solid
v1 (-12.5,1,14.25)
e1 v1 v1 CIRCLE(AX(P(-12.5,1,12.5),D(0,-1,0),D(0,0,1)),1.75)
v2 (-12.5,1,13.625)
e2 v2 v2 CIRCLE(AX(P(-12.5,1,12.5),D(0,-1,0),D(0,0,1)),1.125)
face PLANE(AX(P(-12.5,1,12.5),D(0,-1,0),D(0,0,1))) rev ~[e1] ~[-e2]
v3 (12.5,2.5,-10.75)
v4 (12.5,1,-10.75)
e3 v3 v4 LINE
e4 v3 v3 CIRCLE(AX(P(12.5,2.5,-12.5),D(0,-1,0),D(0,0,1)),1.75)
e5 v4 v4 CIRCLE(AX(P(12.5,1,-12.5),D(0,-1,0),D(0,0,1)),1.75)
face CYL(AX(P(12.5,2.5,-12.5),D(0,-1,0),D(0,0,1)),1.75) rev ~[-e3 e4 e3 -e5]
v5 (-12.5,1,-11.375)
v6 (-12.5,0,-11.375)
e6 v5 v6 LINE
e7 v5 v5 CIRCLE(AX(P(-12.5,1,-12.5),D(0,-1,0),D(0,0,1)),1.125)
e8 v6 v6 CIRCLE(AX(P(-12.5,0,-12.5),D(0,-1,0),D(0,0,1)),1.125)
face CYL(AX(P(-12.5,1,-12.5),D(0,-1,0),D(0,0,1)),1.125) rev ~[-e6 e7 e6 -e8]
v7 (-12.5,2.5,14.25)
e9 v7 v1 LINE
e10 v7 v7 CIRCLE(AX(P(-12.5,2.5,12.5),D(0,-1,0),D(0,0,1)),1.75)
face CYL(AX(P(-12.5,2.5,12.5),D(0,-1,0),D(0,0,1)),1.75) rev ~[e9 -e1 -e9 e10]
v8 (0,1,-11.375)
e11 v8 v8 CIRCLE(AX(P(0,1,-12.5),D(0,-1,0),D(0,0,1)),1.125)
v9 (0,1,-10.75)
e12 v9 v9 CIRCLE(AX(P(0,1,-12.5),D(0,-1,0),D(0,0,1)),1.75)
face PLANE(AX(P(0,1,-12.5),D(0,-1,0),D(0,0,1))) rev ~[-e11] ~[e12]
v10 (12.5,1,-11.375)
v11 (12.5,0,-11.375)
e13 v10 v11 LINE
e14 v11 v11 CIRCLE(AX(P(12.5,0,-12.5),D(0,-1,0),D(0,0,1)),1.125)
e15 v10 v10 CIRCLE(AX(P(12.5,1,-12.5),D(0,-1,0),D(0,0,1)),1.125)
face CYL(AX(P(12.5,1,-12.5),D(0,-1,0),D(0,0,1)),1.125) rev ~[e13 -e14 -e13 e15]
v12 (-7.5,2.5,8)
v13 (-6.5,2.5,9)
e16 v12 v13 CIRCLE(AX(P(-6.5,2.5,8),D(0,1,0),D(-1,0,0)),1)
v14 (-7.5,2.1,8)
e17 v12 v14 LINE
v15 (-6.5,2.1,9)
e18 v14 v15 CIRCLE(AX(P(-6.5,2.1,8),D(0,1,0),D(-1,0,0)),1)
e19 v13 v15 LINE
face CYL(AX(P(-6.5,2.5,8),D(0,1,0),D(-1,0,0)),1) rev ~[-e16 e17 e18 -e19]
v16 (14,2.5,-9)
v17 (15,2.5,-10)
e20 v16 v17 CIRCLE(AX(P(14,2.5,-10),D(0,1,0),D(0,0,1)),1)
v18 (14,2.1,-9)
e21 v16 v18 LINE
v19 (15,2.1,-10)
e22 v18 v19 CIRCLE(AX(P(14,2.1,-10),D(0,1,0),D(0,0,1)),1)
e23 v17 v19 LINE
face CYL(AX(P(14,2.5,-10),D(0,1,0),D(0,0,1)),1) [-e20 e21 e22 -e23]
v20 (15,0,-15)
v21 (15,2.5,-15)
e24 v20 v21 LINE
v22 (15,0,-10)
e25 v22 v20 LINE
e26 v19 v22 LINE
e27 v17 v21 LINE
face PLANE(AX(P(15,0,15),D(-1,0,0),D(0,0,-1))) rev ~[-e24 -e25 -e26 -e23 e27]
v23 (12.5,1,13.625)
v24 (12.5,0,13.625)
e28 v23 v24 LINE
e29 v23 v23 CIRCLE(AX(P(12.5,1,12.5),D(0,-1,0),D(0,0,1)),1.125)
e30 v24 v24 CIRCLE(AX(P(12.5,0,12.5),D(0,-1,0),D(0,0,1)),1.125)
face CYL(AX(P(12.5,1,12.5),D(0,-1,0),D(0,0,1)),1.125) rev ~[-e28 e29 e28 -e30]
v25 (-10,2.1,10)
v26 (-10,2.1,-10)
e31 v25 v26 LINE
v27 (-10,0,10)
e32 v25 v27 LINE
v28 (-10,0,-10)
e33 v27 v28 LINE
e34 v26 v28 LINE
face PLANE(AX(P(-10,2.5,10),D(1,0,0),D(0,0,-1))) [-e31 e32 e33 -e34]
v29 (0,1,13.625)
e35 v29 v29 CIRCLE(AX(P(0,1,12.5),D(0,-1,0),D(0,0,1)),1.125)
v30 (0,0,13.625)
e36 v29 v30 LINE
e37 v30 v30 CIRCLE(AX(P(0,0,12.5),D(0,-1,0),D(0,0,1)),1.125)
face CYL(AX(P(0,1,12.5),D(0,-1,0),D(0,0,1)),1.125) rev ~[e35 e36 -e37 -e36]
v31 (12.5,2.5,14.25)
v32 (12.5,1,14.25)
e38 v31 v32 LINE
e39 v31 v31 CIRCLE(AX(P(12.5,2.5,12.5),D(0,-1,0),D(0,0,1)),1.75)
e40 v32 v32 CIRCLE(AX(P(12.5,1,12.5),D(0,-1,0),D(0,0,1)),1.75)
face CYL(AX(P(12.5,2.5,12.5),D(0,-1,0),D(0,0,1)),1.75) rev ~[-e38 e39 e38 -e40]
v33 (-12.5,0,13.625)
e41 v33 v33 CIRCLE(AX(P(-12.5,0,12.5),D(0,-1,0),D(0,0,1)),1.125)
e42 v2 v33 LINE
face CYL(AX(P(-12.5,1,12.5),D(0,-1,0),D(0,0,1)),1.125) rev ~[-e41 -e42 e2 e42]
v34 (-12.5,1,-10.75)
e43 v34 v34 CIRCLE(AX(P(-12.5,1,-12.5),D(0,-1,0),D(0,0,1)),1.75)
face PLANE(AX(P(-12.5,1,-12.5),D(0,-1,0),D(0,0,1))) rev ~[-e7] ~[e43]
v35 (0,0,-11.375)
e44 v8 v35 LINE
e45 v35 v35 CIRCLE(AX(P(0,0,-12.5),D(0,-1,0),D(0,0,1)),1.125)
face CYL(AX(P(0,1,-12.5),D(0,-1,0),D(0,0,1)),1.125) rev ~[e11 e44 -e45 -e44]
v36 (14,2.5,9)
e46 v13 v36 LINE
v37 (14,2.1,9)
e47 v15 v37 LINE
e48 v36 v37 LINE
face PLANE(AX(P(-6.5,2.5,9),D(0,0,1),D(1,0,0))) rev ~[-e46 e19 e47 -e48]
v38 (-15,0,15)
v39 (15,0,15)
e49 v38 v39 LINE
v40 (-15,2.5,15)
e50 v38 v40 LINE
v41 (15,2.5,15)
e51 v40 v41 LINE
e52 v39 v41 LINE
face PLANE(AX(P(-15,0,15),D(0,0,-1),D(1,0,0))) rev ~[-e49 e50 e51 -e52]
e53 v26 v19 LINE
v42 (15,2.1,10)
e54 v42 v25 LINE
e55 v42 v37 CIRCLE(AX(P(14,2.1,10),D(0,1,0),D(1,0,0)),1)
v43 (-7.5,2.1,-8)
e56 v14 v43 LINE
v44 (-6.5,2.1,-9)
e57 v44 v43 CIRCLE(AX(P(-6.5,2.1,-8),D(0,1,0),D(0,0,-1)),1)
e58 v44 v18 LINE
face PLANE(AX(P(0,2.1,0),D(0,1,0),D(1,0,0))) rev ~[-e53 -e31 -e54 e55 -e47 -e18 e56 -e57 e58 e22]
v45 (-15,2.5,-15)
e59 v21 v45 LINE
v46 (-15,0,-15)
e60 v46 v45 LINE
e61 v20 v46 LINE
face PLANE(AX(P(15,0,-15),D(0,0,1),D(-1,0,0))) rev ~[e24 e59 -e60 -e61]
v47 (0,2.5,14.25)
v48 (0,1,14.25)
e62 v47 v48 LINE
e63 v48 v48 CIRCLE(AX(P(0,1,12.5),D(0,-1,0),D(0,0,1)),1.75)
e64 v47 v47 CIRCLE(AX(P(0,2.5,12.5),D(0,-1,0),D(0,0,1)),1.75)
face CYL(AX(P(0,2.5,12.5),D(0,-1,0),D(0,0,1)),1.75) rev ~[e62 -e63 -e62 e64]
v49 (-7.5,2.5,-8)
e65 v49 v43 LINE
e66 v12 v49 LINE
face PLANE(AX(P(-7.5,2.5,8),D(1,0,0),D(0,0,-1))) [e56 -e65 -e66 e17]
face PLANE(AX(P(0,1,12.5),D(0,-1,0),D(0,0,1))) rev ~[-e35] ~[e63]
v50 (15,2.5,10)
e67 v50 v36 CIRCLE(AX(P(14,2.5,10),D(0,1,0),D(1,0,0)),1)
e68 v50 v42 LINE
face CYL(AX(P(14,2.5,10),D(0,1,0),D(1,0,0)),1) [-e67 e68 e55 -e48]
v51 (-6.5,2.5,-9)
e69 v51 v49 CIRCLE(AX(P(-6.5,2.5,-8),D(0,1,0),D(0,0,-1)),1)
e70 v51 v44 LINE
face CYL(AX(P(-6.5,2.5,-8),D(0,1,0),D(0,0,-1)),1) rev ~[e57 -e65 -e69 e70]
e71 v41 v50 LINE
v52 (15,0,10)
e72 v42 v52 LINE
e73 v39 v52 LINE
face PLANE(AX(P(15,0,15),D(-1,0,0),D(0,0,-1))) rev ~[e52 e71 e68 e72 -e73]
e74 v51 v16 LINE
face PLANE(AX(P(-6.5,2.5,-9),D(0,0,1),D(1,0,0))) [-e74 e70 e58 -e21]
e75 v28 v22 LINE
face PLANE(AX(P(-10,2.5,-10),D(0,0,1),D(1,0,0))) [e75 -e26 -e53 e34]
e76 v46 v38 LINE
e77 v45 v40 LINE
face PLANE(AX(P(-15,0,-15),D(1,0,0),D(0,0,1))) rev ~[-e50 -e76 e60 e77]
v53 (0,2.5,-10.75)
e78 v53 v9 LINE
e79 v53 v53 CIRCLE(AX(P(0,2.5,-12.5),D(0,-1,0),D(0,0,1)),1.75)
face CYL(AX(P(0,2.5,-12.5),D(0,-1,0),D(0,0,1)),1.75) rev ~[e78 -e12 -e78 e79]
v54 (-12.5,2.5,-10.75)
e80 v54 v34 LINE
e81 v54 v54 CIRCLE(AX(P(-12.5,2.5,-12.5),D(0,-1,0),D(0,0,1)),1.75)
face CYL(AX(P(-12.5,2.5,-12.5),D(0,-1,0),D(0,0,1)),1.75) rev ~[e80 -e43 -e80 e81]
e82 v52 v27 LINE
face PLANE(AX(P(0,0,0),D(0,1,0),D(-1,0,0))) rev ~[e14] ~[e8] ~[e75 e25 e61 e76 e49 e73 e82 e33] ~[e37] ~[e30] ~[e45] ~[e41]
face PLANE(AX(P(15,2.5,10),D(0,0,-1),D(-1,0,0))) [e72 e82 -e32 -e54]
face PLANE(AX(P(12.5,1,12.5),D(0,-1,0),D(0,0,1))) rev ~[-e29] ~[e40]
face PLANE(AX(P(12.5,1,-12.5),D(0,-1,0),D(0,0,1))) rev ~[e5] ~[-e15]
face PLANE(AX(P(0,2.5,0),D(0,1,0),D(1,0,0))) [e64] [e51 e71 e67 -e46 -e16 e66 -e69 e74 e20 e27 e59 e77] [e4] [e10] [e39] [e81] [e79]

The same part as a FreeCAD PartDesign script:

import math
import FreeCAD as App
import Part
import Sketcher

V = App.Vector


def add_polygon(sketch, points):
    """Adds a closed chain of lines whose ends are joined by coincident constraints."""
    first, n = sketch.GeometryCount, len(points)
    for a, b in zip(points, points[1:] + points[:1]):
        sketch.addGeometry(Part.LineSegment(App.Vector(*a, 0), App.Vector(*b, 0)), False)
    for i in range(n):
        sketch.addConstraint(Sketcher.Constraint("Coincident", first + i, 2, first + (i + 1) % n, 1))

doc = App.newDocument("Part")
params = doc.addObject("Spreadsheet::Sheet", "Params")
for row, (alias, value) in enumerate([
    ("sketch1_width", "30 mm"),
    ("pad1_length", "2.5 mm"),
    ("sketch2_width", "25 mm"),
    ("sketch2_height", "20 mm"),
    ("sketch3_radius", "1 mm"),
    ("sketch3_width", "25 mm"),
    ("sketch3_height", "16 mm"),
    ("pad2_length", "0.4 mm"),
    ("sketch4_diameter", "2.25 mm"),
    ("hole_diameter", "2.25 mm"),
    ("hole_cbore_diameter", "3.5 mm"),
    ("hole_cbore_depth", "1.5 mm"),
], start=1):
    params.set(f"A{row}", alias)
    params.set(f"B{row}", "=" + value)
    params.setAlias(f"B{row}", alias)

body = doc.addObject("PartDesign::Body", "Body")

# Sketch on XZ plane
sketch1 = doc.addObject("Sketcher::SketchObject", "Sketch")
body.addObject(sketch1)
sketch1.AttachmentSupport = (doc.XZ_Plane, [""])
sketch1.MapMode = "FlatFace"
add_polygon(sketch1, [(15, 15), (15, -15), (-15, -15), (-15, 15)])  # lines 0-3
sketch1.addConstraint([
    Sketcher.Constraint("Vertical", 0),
    Sketcher.Constraint("Horizontal", 1),
    Sketcher.Constraint("Vertical", 2),
    Sketcher.Constraint("Horizontal", 3),
    Sketcher.Constraint("Symmetric", 0, 2, 2, 2, -1, 1),
    Sketcher.Constraint("Equal", 3, 0),
    Sketcher.Constraint("DistanceX", 1, 2, 1, 1, 30.0),
])
sketch1.setExpression("Constraints[10]", "Params.sketch1_width")
pad1 = doc.addObject("PartDesign::Pad", "Pad")
body.addObject(pad1)
pad1.Profile = sketch1
pad1.setExpression("Length", "Params.pad1_length")
pad1.Reversed = True

# Sketch on XZ plane
sketch2 = doc.addObject("Sketcher::SketchObject", "Sketch001")
body.addObject(sketch2)
sketch2.AttachmentSupport = (doc.XZ_Plane, [""])
sketch2.MapMode = "FlatFace"
sketch2.AttachmentOffset = App.Placement(V(0, 0, -2.5), App.Rotation())
add_polygon(sketch2, [(-10, 10), (15, 10), (15, -10), (-10, -10)])  # lines 0-3
sketch2.addConstraint([
    Sketcher.Constraint("Horizontal", 0),
    Sketcher.Constraint("Vertical", 1),
    Sketcher.Constraint("Horizontal", 2),
    Sketcher.Constraint("Vertical", 3),
    Sketcher.Constraint("DistanceX", 0, 1, 0, 2, 25.0),
    Sketcher.Constraint("DistanceY", 1, 2, 1, 1, 20.0),
    Sketcher.Constraint("DistanceY", -1, 1, 0, 2, 10.0),
    Sketcher.Constraint("DistanceX", 2, 2, -1, 1, 10.0),
])
sketch2.setExpression("Constraints[8]", "Params.sketch2_width")
sketch2.setExpression("Constraints[9]", "Params.sketch2_height")
pocket1 = doc.addObject("PartDesign::Pocket", "Pocket")
body.addObject(pocket1)
pocket1.Profile = sketch2
pocket1.Type = "ThroughAll"
pocket1.Reversed = True

# Sketch on XZ plane
sketch3 = doc.addObject("Sketcher::SketchObject", "Sketch002")
body.addObject(sketch3)
sketch3.AttachmentSupport = (doc.XZ_Plane, [""])
sketch3.MapMode = "FlatFace"
sketch3.AttachmentOffset = App.Placement(V(0, 0, -2.5), App.Rotation())
sketch3.addGeometry([
    Part.LineSegment(V(-10, 10, 0), V(15, 10, 0)),  # 0
    Part.ArcOfCircle(Part.Circle(V(14, 10, 0), V(0, 0, 1), 1), math.radians(-90), math.radians(0)),  # 1
    Part.LineSegment(V(14, 9, 0), V(-6.5, 9, 0)),  # 2
    Part.ArcOfCircle(Part.Circle(V(-6.5, 8, 0), V(0, 0, 1), 1), math.radians(90), math.radians(180)),  # 3
    Part.LineSegment(V(-7.5, 8, 0), V(-7.5, -8, 0)),  # 4
    Part.ArcOfCircle(Part.Circle(V(-6.5, -8, 0), V(0, 0, 1), 1), math.radians(180), math.radians(270)),  # 5
    Part.LineSegment(V(-6.5, -9, 0), V(14, -9, 0)),  # 6
    Part.ArcOfCircle(Part.Circle(V(14, -10, 0), V(0, 0, 1), 1), math.radians(0), math.radians(90)),  # 7
    Part.LineSegment(V(15, -10, 0), V(-10, -10, 0)),  # 8
    Part.LineSegment(V(-10, -10, 0), V(-10, 10, 0)),  # 9
], False)
sketch3.addConstraint([
    Sketcher.Constraint("Coincident", 0, 2, 1, 2),
    Sketcher.Constraint("Tangent", 1, 1, 2, 1),
    Sketcher.Constraint("Tangent", 2, 2, 3, 1),
    Sketcher.Constraint("Tangent", 3, 2, 4, 1),
    Sketcher.Constraint("Tangent", 4, 2, 5, 1),
    Sketcher.Constraint("Tangent", 5, 2, 6, 1),
    Sketcher.Constraint("Tangent", 6, 2, 7, 2),
    Sketcher.Constraint("Coincident", 7, 1, 8, 1),
    Sketcher.Constraint("Coincident", 8, 2, 9, 1),
    Sketcher.Constraint("Coincident", 9, 2, 0, 1),
    Sketcher.Constraint("Horizontal", 0),
    Sketcher.Constraint("Horizontal", 2),
    Sketcher.Constraint("Vertical", 4),
    Sketcher.Constraint("Horizontal", 6),
    Sketcher.Constraint("Horizontal", 8),
    Sketcher.Constraint("Vertical", 9),
    Sketcher.Constraint("Equal", 1, 3),
    Sketcher.Constraint("Equal", 3, 5),
    Sketcher.Constraint("Equal", 5, 7),
    Sketcher.Constraint("Symmetric", 1, 3, 7, 3, -1),
    Sketcher.Constraint("Horizontal", 1, 3, 0, 2),
    Sketcher.Constraint("Radius", 1, 1.0),
    Sketcher.Constraint("DistanceY", 7, 1, 6, 2, 1.0),
    Sketcher.Constraint("DistanceX", 8, 2, 4, 2, 2.5),
    Sketcher.Constraint("DistanceX", 0, 1, 0, 2, 25.0),
    Sketcher.Constraint("DistanceY", 4, 2, 4, 1, 16.0),
    Sketcher.Constraint("DistanceX", -1, 1, 1, 3, 14.0),
])
sketch3.setExpression("Constraints[21]", "Params.sketch3_radius")
sketch3.setExpression("Constraints[24]", "Params.sketch3_width")
sketch3.setExpression("Constraints[25]", "Params.sketch3_height")
pad2 = doc.addObject("PartDesign::Pad", "Pad001")
body.addObject(pad2)
pad2.Profile = sketch3
pad2.setExpression("Length", "Params.pad2_length")

# Sketch on XZ plane
sketch4 = doc.addObject("Sketcher::SketchObject", "Sketch003")
body.addObject(sketch4)
sketch4.AttachmentSupport = (doc.XZ_Plane, [""])
sketch4.MapMode = "FlatFace"
sketch4.AttachmentOffset = App.Placement(V(0, 0, -2.5), App.Rotation())
sketch4.addGeometry([
    Part.Circle(V(12.5, 12.5, 0), V(0, 0, 1), 1.125),  # 0
    Part.Circle(V(-12.5, 12.5, 0), V(0, 0, 1), 1.125),  # 1
    Part.Circle(V(-12.5, -12.5, 0), V(0, 0, 1), 1.125),  # 2
    Part.Circle(V(12.5, -12.5, 0), V(0, 0, 1), 1.125),  # 3
    Part.Circle(V(0, 12.5, 0), V(0, 0, 1), 1.125),  # 4
    Part.Circle(V(0, -12.5, 0), V(0, 0, 1), 1.125),  # 5
], False)
sketch4.addConstraint([
    Sketcher.Constraint("Equal", 0, 1),
    Sketcher.Constraint("Equal", 1, 2),
    Sketcher.Constraint("Equal", 2, 3),
    Sketcher.Constraint("Equal", 3, 4),
    Sketcher.Constraint("Equal", 4, 5),
    Sketcher.Constraint("Symmetric", 0, 3, 2, 3, -1, 1),
    Sketcher.Constraint("Symmetric", 1, 3, 3, 3, -1, 1),
    Sketcher.Constraint("Symmetric", 4, 3, 5, 3, -1, 1),
    Sketcher.Constraint("Symmetric", 0, 3, 1, 3, -2),
    Sketcher.Constraint("PointOnObject", 4, 3, -2),
    Sketcher.Constraint("Horizontal", 1, 3, 4, 3),
    Sketcher.Constraint("Diameter", 0, 2.25),
    Sketcher.Constraint("DistanceX", 1, 3, 0, 3, 25.0),
    Sketcher.Constraint("DistanceY", 2, 3, 1, 3, 25.0),
])
sketch4.setExpression("Constraints[11]", "Params.sketch4_diameter")
doc.recompute()
hole = doc.addObject("PartDesign::Hole", "Hole")
body.addObject(hole)
hole.Profile = sketch4
hole.ThreadType = "None"
hole.setExpression("Diameter", "Params.hole_diameter")
hole.DepthType = "ThroughAll"
hole.HoleCutType = "Counterbore"
hole.setExpression("HoleCutDiameter", "Params.hole_cbore_diameter")
hole.setExpression("HoleCutDepth", "Params.hole_cbore_depth")
hole.Reversed = True

doc.recompute()
